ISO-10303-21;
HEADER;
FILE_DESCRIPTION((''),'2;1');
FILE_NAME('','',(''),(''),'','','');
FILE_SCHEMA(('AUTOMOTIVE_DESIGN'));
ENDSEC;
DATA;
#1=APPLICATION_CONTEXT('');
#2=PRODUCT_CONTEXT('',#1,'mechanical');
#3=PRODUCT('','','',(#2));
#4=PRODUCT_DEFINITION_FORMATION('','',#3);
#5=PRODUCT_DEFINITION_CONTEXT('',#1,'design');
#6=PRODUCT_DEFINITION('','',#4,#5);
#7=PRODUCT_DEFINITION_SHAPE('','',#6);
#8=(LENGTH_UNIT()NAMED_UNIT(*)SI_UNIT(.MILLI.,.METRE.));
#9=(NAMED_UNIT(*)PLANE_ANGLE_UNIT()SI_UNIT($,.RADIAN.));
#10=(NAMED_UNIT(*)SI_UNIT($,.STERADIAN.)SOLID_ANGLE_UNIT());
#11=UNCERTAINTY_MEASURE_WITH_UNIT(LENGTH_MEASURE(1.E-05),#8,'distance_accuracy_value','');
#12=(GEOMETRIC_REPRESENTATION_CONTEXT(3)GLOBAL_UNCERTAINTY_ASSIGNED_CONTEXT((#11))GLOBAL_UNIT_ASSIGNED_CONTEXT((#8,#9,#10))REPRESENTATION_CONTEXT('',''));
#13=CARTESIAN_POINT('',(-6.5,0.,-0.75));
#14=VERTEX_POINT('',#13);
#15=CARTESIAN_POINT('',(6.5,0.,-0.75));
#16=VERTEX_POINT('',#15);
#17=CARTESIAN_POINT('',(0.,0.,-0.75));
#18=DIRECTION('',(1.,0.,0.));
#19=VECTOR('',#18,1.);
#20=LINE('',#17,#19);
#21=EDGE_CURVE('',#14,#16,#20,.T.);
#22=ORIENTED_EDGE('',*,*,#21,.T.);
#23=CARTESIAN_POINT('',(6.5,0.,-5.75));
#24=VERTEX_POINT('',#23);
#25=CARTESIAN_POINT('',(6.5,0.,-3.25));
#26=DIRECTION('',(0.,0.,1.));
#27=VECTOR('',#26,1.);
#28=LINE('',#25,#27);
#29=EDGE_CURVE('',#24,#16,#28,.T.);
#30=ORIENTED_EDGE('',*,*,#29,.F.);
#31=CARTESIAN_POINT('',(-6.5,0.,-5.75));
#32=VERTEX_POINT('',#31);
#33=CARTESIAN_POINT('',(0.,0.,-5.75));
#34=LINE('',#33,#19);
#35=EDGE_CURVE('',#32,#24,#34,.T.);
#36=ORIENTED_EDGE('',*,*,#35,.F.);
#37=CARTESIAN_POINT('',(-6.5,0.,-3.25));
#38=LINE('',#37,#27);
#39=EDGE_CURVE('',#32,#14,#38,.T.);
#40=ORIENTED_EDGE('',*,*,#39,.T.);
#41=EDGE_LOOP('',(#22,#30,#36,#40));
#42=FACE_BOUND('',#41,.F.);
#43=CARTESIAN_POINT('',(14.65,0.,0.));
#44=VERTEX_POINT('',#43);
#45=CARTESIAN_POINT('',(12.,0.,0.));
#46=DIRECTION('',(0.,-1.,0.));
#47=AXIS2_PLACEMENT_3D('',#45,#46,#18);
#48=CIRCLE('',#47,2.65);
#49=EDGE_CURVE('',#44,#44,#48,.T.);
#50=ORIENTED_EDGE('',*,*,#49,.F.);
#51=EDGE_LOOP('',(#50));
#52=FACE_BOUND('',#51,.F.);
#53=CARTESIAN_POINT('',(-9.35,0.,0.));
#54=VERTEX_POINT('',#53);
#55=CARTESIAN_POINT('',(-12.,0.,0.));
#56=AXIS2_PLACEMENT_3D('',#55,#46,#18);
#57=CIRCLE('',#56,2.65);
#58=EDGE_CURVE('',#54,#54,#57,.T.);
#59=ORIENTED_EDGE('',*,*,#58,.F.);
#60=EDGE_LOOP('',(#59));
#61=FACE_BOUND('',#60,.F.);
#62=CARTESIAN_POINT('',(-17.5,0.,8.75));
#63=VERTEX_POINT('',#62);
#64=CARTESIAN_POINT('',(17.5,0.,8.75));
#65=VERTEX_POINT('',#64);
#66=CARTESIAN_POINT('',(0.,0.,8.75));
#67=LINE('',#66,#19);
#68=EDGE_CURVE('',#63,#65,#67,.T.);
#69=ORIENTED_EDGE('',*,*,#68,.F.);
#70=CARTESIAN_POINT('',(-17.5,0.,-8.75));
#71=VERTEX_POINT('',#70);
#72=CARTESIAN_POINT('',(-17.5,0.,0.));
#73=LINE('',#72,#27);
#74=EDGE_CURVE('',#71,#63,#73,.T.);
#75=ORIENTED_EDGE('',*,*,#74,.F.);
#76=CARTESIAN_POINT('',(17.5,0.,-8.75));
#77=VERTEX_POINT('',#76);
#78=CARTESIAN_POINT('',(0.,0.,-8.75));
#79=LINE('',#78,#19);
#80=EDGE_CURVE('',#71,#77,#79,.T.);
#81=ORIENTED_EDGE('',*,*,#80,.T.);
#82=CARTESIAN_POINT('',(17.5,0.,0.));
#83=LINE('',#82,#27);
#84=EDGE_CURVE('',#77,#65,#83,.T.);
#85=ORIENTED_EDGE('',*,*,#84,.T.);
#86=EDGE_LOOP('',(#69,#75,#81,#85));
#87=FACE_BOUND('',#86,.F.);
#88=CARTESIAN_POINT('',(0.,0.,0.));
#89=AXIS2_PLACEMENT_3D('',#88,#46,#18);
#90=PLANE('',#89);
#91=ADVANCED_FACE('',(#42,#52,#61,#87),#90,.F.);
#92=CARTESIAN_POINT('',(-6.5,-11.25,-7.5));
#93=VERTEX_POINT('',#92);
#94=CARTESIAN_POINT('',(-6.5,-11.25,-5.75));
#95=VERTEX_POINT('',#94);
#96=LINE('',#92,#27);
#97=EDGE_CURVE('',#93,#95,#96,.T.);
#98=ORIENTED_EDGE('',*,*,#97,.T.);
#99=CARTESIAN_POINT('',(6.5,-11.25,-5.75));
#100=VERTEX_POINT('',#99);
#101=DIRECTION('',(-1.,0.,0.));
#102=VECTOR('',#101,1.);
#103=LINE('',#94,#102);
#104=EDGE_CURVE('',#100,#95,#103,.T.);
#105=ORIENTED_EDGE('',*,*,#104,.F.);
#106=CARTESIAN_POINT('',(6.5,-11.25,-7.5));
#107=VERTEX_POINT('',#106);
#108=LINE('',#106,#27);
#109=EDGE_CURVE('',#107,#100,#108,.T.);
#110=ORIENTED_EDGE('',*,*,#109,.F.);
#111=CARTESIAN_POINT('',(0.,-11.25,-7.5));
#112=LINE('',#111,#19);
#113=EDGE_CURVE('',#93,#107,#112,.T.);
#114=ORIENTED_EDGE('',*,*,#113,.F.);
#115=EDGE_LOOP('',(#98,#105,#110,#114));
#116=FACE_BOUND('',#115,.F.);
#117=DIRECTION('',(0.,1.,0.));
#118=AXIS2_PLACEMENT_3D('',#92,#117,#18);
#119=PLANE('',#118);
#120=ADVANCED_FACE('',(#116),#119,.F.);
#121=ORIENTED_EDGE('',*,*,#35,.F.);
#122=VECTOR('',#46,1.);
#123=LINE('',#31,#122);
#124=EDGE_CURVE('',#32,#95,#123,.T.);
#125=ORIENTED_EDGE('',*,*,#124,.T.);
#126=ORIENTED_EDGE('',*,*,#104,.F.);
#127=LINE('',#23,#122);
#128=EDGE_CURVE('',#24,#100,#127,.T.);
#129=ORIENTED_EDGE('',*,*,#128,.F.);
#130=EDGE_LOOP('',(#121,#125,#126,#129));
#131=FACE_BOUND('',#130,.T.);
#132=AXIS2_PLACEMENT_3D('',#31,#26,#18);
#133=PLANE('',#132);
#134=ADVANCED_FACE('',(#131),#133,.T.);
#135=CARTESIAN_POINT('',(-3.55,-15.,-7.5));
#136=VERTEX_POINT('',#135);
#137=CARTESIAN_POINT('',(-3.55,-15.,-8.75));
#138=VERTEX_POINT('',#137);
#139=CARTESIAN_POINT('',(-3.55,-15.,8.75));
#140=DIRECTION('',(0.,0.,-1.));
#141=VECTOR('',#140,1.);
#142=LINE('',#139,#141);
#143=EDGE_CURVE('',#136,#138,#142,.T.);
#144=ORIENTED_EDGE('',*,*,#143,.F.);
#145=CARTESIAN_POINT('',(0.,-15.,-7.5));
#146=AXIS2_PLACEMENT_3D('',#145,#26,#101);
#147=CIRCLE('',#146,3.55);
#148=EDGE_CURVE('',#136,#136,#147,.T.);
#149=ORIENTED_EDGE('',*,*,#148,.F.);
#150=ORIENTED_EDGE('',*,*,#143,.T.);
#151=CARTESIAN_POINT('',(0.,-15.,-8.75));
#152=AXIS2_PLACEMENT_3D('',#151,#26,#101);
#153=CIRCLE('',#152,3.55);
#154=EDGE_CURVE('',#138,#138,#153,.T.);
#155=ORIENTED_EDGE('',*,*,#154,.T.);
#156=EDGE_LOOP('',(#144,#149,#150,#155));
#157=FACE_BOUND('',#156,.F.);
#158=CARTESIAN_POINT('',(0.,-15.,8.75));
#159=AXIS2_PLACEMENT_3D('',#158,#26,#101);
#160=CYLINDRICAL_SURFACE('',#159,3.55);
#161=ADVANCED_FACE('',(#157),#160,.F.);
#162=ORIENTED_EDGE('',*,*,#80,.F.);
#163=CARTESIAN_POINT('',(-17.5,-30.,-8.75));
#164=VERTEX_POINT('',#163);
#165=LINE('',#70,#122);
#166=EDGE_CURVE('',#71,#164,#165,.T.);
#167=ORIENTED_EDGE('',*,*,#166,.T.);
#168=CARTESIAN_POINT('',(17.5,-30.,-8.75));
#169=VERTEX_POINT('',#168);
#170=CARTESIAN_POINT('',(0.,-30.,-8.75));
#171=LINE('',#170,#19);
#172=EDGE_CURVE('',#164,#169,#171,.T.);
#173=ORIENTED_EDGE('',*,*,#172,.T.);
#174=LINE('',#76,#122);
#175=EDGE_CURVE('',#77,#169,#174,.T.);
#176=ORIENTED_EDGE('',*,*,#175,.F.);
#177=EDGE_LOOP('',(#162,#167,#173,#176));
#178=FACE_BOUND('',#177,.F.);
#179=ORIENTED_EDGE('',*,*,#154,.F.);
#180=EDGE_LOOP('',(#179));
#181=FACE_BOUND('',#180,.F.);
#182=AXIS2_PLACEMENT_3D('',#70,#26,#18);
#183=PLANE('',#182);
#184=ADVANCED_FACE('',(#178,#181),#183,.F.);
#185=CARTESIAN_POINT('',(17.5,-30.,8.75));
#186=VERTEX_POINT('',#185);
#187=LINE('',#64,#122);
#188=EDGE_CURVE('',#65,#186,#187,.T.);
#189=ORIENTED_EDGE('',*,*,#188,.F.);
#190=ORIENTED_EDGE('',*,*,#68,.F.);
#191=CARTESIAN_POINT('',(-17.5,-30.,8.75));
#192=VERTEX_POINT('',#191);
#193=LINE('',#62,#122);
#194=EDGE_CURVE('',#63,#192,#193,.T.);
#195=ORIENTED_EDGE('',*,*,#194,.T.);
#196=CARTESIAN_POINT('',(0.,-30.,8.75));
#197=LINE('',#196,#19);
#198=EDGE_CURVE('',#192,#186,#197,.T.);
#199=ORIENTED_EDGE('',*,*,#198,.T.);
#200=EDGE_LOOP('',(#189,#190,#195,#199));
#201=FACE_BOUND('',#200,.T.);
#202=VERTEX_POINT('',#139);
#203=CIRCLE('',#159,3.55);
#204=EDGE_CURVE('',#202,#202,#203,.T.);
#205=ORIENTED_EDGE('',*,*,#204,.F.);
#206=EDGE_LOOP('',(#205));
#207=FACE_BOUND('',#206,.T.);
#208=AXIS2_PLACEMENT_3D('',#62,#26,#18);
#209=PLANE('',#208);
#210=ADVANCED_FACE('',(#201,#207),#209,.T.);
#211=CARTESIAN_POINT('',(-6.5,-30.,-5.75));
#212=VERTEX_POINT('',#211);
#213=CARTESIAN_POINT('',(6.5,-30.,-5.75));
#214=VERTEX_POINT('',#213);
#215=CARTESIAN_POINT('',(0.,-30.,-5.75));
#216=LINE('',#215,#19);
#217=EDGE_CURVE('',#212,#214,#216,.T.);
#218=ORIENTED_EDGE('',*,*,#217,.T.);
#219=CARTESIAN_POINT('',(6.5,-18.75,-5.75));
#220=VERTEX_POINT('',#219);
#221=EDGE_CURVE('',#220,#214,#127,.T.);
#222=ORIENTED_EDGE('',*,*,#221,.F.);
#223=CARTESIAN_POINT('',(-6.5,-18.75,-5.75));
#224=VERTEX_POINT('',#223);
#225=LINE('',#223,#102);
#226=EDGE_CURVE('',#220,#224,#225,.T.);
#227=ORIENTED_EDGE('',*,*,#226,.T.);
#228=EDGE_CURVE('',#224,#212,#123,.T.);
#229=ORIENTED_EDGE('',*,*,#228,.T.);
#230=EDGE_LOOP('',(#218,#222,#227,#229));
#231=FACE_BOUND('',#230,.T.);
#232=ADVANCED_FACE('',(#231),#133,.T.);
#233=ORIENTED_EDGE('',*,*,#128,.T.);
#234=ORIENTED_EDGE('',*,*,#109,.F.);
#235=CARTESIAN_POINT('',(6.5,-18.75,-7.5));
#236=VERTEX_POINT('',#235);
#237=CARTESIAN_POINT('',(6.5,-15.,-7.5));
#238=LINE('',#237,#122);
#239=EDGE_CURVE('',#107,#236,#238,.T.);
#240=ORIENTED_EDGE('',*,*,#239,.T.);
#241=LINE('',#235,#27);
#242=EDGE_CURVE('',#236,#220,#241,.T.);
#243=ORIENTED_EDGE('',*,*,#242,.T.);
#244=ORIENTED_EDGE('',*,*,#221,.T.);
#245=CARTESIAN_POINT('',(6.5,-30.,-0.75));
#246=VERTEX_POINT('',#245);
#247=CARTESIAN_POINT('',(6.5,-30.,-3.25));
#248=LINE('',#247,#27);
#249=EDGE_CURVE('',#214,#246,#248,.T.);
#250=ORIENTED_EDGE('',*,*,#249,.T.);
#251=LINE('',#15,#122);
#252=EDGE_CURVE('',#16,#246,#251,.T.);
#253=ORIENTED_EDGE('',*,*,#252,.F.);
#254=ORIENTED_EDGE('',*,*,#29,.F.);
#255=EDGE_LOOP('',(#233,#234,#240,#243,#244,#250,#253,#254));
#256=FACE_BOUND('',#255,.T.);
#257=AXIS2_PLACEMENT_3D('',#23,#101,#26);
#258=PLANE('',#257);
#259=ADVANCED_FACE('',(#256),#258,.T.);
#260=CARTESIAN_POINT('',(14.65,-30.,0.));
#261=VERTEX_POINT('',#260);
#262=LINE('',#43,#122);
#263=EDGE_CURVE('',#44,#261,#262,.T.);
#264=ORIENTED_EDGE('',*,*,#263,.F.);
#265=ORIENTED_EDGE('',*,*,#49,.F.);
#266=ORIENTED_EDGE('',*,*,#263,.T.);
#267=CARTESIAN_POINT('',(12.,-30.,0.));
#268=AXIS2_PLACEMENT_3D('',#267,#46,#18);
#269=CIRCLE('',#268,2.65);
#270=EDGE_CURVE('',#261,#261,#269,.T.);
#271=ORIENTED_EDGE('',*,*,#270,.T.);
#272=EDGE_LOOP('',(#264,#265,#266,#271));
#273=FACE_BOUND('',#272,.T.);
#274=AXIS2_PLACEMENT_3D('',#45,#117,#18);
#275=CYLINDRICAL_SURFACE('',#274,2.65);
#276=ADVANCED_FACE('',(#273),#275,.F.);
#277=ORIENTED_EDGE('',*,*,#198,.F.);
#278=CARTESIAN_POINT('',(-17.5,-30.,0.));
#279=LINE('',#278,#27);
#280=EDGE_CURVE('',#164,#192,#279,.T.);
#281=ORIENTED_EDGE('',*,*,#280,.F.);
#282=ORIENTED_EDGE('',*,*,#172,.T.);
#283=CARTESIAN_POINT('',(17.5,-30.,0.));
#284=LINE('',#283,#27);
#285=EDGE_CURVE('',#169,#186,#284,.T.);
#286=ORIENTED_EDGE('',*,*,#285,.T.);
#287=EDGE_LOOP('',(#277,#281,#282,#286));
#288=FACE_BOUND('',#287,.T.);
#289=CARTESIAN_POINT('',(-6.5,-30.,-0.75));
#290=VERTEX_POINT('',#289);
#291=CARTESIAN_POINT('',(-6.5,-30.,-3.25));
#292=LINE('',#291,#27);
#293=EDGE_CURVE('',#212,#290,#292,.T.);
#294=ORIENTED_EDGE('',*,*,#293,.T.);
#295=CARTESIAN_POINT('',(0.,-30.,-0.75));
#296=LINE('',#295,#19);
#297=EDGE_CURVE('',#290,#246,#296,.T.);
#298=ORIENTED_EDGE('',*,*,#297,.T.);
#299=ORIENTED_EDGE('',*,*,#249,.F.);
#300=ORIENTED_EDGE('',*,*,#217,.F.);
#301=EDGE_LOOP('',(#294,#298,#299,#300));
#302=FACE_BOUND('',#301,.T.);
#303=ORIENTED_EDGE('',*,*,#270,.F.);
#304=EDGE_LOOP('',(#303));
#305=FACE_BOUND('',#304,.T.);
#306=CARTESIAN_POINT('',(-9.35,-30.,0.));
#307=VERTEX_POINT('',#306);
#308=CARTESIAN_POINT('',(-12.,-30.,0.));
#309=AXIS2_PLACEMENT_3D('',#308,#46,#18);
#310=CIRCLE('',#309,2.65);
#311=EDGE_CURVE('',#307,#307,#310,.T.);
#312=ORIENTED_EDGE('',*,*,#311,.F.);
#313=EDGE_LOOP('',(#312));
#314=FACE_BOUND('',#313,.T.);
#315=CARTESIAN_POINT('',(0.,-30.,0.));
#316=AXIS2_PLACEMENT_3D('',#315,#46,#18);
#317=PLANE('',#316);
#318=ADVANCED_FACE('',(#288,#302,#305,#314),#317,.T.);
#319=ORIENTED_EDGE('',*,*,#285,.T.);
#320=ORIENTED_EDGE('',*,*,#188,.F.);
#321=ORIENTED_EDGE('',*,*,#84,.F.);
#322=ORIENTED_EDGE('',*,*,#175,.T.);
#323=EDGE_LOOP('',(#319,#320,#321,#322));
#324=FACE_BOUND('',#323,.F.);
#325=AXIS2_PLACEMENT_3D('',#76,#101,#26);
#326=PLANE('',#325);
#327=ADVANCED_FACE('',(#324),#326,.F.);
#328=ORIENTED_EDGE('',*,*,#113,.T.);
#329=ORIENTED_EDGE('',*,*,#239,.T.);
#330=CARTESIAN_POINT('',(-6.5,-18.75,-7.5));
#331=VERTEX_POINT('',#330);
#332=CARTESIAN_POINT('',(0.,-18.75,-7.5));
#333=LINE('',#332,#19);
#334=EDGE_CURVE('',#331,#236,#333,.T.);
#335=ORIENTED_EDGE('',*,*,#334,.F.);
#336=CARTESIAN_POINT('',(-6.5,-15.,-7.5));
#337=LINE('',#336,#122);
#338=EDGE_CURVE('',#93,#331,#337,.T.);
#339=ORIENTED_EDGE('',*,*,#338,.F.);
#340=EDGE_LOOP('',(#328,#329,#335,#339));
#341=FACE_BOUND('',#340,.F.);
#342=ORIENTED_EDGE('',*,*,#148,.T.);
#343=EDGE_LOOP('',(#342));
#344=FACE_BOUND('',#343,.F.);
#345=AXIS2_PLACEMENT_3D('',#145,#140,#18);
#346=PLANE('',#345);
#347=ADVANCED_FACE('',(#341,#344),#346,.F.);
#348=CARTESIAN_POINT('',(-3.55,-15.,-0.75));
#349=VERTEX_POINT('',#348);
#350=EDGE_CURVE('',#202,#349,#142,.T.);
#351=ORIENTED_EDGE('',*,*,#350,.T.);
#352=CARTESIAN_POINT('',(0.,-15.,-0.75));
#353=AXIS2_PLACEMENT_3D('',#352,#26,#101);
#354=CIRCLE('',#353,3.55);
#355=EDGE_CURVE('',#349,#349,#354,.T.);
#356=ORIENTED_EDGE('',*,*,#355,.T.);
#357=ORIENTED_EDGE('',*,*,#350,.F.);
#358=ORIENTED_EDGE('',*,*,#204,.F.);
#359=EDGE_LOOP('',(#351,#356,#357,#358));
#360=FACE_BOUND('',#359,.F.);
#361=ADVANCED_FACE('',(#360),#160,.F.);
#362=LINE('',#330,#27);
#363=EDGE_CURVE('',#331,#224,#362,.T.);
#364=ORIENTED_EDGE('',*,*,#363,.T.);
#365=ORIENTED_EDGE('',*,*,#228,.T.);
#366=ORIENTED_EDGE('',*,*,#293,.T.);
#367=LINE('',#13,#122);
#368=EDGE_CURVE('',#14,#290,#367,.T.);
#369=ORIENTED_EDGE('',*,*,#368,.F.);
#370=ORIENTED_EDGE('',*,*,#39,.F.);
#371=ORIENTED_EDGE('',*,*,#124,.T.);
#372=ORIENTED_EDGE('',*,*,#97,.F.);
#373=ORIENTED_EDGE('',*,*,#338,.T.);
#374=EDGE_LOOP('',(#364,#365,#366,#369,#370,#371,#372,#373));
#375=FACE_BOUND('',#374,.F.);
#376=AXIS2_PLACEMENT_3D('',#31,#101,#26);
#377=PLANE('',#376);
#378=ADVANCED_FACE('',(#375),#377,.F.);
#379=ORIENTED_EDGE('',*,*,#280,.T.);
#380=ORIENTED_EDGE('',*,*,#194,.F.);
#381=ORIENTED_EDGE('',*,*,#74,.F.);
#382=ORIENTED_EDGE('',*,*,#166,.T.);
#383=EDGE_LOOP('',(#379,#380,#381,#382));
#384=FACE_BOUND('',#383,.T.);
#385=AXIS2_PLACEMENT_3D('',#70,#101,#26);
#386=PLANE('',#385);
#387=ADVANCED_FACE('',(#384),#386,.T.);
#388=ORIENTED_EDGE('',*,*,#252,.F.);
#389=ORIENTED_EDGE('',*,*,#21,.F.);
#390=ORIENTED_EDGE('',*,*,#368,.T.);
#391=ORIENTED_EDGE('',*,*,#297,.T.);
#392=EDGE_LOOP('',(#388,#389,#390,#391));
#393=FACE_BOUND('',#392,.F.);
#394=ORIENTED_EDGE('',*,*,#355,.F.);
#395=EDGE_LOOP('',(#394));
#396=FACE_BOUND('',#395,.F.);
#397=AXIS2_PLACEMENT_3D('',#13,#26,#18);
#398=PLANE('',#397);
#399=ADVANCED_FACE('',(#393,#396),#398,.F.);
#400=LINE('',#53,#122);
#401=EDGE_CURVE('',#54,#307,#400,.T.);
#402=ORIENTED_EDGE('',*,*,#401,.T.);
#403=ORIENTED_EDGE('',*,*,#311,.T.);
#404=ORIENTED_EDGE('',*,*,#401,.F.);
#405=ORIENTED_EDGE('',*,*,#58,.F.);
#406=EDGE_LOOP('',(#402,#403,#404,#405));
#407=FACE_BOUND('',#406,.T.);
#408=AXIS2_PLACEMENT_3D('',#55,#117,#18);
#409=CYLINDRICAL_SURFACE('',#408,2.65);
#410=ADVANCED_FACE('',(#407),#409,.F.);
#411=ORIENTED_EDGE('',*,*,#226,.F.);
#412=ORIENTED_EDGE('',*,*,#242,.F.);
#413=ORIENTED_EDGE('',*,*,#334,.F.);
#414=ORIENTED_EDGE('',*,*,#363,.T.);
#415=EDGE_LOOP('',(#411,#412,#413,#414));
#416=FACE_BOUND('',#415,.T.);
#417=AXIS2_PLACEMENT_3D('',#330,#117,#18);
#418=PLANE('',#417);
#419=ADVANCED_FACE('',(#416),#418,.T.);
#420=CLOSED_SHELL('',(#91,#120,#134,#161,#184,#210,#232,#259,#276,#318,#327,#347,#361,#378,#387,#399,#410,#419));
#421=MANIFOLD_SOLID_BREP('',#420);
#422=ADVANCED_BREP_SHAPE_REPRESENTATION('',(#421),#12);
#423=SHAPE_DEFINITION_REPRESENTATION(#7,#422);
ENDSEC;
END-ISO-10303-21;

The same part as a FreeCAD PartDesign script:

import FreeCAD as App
import Part
import Sketcher
from FreeCAD import Vector

doc = App.newDocument("Part")
params = doc.addObject("Spreadsheet::Sheet", "Params")
for row, (alias, value) in enumerate([
    ("sketch1_diameter", "5.3 mm"),
    ("sketch1_width", "35 mm"),
    ("sketch1_width2", "13 mm"),
    ("sketch1_height", "5 mm"),
    ("sketch1_height2", "17.5 mm"),
    ("pad1_length", "30 mm"),
    ("sketch2_diameter", "7.1 mm"),
    ("sketch3_width", "13 mm"),
    ("sketch3_height", "7.5 mm"),
    ("pocket2_length", "5 mm"),
], start=1):
    params.set(f"A{row}", alias)
    params.set(f"B{row}", "=" + value)
    params.setAlias(f"B{row}", alias)

body = doc.addObject("PartDesign::Body", "Body")

sketch1 = body.newObject("Sketcher::SketchObject", "Sketch")
sketch1.AttachmentSupport = (doc.getObject("XZ_Plane"), [""])
sketch1.MapMode = "FlatFace"
sketch1.addGeometry(Part.LineSegment(Vector(-17.5, 8.8, 0), Vector(-17.5, -8.8, 0)), False)
sketch1.addGeometry(Part.LineSegment(Vector(-17.5, -8.8, 0), Vector(17.5, -8.8, 0)), False)
sketch1.addGeometry(Part.LineSegment(Vector(17.5, -8.8, 0), Vector(17.5, 8.8, 0)), False)
sketch1.addGeometry(Part.LineSegment(Vector(17.5, 8.8, 0), Vector(-17.5, 8.8, 0)), False)
sketch1.addGeometry(Part.LineSegment(Vector(6.5, -5.8, 0), Vector(-6.5, -5.8, 0)), False)
sketch1.addGeometry(Part.LineSegment(Vector(-6.5, -5.8, 0), Vector(-6.5, -0.8, 0)), False)
sketch1.addGeometry(Part.LineSegment(Vector(-6.5, -0.8, 0), Vector(6.5, -0.8, 0)), False)
sketch1.addGeometry(Part.LineSegment(Vector(6.5, -0.8, 0), Vector(6.5, -5.8, 0)), False)
sketch1.addGeometry(Part.Circle(Vector(-12, 0, 0), Vector(0, 0, 1), 2.6), False)
sketch1.addGeometry(Part.Circle(Vector(12, 0, 0), Vector(0, 0, 1), 2.6), False)
sketch1.addConstraint(Sketcher.Constraint("Coincident", 0, 2, 1, 1))
sketch1.addConstraint(Sketcher.Constraint("Coincident", 1, 2, 2, 1))
sketch1.addConstraint(Sketcher.Constraint("Coincident", 2, 2, 3, 1))
sketch1.addConstraint(Sketcher.Constraint("Coincident", 3, 2, 0, 1))
sketch1.addConstraint(Sketcher.Constraint("Coincident", 4, 2, 5, 1))
sketch1.addConstraint(Sketcher.Constraint("Coincident", 5, 2, 6, 1))
sketch1.addConstraint(Sketcher.Constraint("Coincident", 6, 2, 7, 1))
sketch1.addConstraint(Sketcher.Constraint("Coincident", 7, 2, 4, 1))
sketch1.addConstraint(Sketcher.Constraint("Vertical", 0))
sketch1.addConstraint(Sketcher.Constraint("Horizontal", 1))
sketch1.addConstraint(Sketcher.Constraint("Vertical", 2))
sketch1.addConstraint(Sketcher.Constraint("Horizontal", 3))
sketch1.addConstraint(Sketcher.Constraint("Horizontal", 4))
sketch1.addConstraint(Sketcher.Constraint("Vertical", 5))
sketch1.addConstraint(Sketcher.Constraint("Horizontal", 6))
sketch1.addConstraint(Sketcher.Constraint("Vertical", 7))
sketch1.addConstraint(Sketcher.Constraint("Equal", 8, 9))
sketch1.addConstraint(Sketcher.Constraint("Symmetric", 8, 3, 9, 3, -1, 1))
sketch1.addConstraint(Sketcher.Constraint("Symmetric", 0, 2, 2, 2, -1, 1))
sketch1.addConstraint(Sketcher.Constraint("PointOnObject", 8, 3, -1))
sketch1.addConstraint(Sketcher.Constraint("Diameter", 8, 5.3))
sketch1.addConstraint(Sketcher.Constraint("DistanceX", 1, 1, 1, 2, 35.0))
sketch1.addConstraint(Sketcher.Constraint("DistanceX", 4, 2, 4, 1, 13.0))
sketch1.addConstraint(Sketcher.Constraint("DistanceY", 5, 1, 5, 2, 5.0))
sketch1.addConstraint(Sketcher.Constraint("DistanceY", 0, 2, 0, 1, 17.5))
sketch1.addConstraint(Sketcher.Constraint("DistanceX", 8, 3, -1, 1, 12.0))
sketch1.addConstraint(Sketcher.Constraint("DistanceX", 0, 2, 4, 2, 11.0))
sketch1.addConstraint(Sketcher.Constraint("DistanceY", 0, 2, 4, 2, 3.0))
sketch1.setExpression("Constraints[20]", "Params.sketch1_diameter")
sketch1.setExpression("Constraints[21]", "Params.sketch1_width")
sketch1.setExpression("Constraints[22]", "Params.sketch1_width2")
sketch1.setExpression("Constraints[23]", "Params.sketch1_height")
sketch1.setExpression("Constraints[24]", "Params.sketch1_height2")
pad1 = body.newObject("PartDesign::Pad", "Pad")
pad1.Profile = sketch1
pad1.setExpression("Length", "Params.pad1_length")

sketch2 = body.newObject("Sketcher::SketchObject", "Sketch001")
sketch2.AttachmentSupport = (doc.getObject("XY_Plane"), [""])
sketch2.MapMode = "FlatFace"
sketch2.AttachmentOffset = App.Placement(Vector(0, 0, 8.75), App.Rotation())
sketch2.addGeometry(Part.Circle(Vector(0, -15, 0), Vector(0, 0, 1), 3.5), False)
sketch2.addConstraint(Sketcher.Constraint("PointOnObject", 0, 3, -2))
sketch2.addConstraint(Sketcher.Constraint("Diameter", 0, 7.1))
sketch2.addConstraint(Sketcher.Constraint("DistanceY", 0, 3, -1, 1, 15.0))
sketch2.setExpression("Constraints[1]", "Params.sketch2_diameter")
pocket1 = body.newObject("PartDesign::Pocket", "Pocket")
pocket1.Profile = sketch2
pocket1.Type = "ThroughAll"

sketch3 = body.newObject("Sketcher::SketchObject", "Sketch002")
sketch3.AttachmentSupport = (doc.getObject("XY_Plane"), [""])
sketch3.MapMode = "FlatFace"
sketch3.AttachmentOffset = App.Placement(Vector(0, 0, -7.5), App.Rotation())
sketch3.addGeometry(Part.LineSegment(Vector(-6, -19, 0), Vector(-6, -11, 0)), False)
sketch3.addGeometry(Part.LineSegment(Vector(-6, -11, 0), Vector(6, -11, 0)), False)
sketch3.addGeometry(Part.LineSegment(Vector(6, -11, 0), Vector(6, -19, 0)), False)
sketch3.addGeometry(Part.LineSegment(Vector(6, -19, 0), Vector(-6, -19, 0)), False)
sketch3.addConstraint(Sketcher.Constraint("Coincident", 0, 2, 1, 1))
sketch3.addConstraint(Sketcher.Constraint("Coincident", 1, 2, 2, 1))
sketch3.addConstraint(Sketcher.Constraint("Coincident", 2, 2, 3, 1))
sketch3.addConstraint(Sketcher.Constraint("Coincident", 3, 2, 0, 1))
sketch3.addConstraint(Sketcher.Constraint("Vertical", 0))
sketch3.addConstraint(Sketcher.Constraint("Horizontal", 1))
sketch3.addConstraint(Sketcher.Constraint("Vertical", 2))
sketch3.addConstraint(Sketcher.Constraint("Horizontal", 3))
sketch3.addConstraint(Sketcher.Constraint("DistanceX", 1, 1, 1, 2, 13.0))
sketch3.addConstraint(Sketcher.Constraint("DistanceY", 0, 1, 0, 2, 7.5))
sketch3.addConstraint(Sketcher.Constraint("DistanceX", 0, 2, -1, 1, 6.5))
sketch3.addConstraint(Sketcher.Constraint("DistanceY", 0, 2, -1, 1, 11.25))
sketch3.setExpression("Constraints[8]", "Params.sketch3_width")
sketch3.setExpression("Constraints[9]", "Params.sketch3_height")
pocket2 = body.newObject("PartDesign::Pocket", "Pocket001")
pocket2.Profile = sketch3
pocket2.setExpression("Length", "Params.pocket2_length")
pocket2.Reversed = True

doc.recompute()
